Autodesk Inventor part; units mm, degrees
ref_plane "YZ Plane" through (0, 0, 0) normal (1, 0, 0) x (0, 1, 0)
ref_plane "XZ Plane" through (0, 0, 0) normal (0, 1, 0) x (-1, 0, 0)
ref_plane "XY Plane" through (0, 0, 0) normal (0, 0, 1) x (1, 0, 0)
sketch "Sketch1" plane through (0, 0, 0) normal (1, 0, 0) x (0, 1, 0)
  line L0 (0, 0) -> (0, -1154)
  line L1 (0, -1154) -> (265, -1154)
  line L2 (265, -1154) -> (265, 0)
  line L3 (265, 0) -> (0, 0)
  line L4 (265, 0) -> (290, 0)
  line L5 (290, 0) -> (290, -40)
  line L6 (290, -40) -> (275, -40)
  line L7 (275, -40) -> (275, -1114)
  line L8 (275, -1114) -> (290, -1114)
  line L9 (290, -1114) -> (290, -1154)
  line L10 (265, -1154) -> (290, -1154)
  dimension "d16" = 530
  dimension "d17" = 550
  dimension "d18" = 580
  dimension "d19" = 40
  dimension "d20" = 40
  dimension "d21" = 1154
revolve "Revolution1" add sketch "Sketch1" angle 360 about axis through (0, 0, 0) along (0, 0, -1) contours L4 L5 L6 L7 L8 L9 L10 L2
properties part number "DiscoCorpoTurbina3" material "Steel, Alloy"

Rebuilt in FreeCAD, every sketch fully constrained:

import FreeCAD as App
import Part
import Sketcher

V = App.Vector

doc = App.newDocument("Part")
body = doc.addObject("PartDesign::Body", "Body")

# Sketch on YZ plane
sketch1 = body.newObject("Sketcher::SketchObject", "Sketch")
sketch1.AttachmentSupport = (doc.getObject("YZ_Plane"), [""])
sketch1.MapMode = "FlatFace"
sketch1.addGeometry(Part.LineSegment(V(290, 0, 0), V(265, 0, 0)), False)
sketch1.addGeometry(Part.LineSegment(V(265, 0, 0), V(265, -1154, 0)), False)
sketch1.addGeometry(Part.LineSegment(V(265, -1154, 0), V(290, -1154, 0)), False)
sketch1.addGeometry(Part.LineSegment(V(290, -1154, 0), V(290, -1114, 0)), False)
sketch1.addGeometry(Part.LineSegment(V(290, -1114, 0), V(275, -1114, 0)), False)
sketch1.addGeometry(Part.LineSegment(V(275, -1114, 0), V(275, -40, 0)), False)
sketch1.addGeometry(Part.LineSegment(V(275, -40, 0), V(290, -40, 0)), False)
sketch1.addGeometry(Part.LineSegment(V(290, -40, 0), V(290, 0, 0)), False)
sketch1.addConstraint(Sketcher.Constraint("Coincident", 0, 2, 1, 1))
sketch1.addConstraint(Sketcher.Constraint("Coincident", 1, 2, 2, 1))
sketch1.addConstraint(Sketcher.Constraint("Coincident", 2, 2, 3, 1))
sketch1.addConstraint(Sketcher.Constraint("Coincident", 3, 2, 4, 1))
sketch1.addConstraint(Sketcher.Constraint("Coincident", 4, 2, 5, 1))
sketch1.addConstraint(Sketcher.Constraint("Coincident", 5, 2, 6, 1))
sketch1.addConstraint(Sketcher.Constraint("Coincident", 6, 2, 7, 1))
sketch1.addConstraint(Sketcher.Constraint("Coincident", 7, 2, 0, 1))
sketch1.addConstraint(Sketcher.Constraint("Horizontal", 0))
sketch1.addConstraint(Sketcher.Constraint("Vertical", 1))
sketch1.addConstraint(Sketcher.Constraint("Horizontal", 2))
sketch1.addConstraint(Sketcher.Constraint("Vertical", 3))
sketch1.addConstraint(Sketcher.Constraint("Horizontal", 4))
sketch1.addConstraint(Sketcher.Constraint("Vertical", 5))
sketch1.addConstraint(Sketcher.Constraint("Horizontal", 6))
sketch1.addConstraint(Sketcher.Constraint("Vertical", 7))
sketch1.addConstraint(Sketcher.Constraint("PointOnObject", 0, 2, -1))
sketch1.addConstraint(Sketcher.Constraint("Vertical", 3, 2, 6, 2))
sketch1.addConstraint(Sketcher.Constraint("Equal", 3, 7))
sketch1.addConstraint(Sketcher.Constraint("DistanceY", 1, 2, 1, 1, 1154.0))
sketch1.addConstraint(Sketcher.Constraint("DistanceY", 3, 1, 3, 2, 40.0))
sketch1.addConstraint(Sketcher.Constraint("DistanceX", 0, 2, 0, 1, 25.0))
sketch1.addConstraint(Sketcher.Constraint("DistanceX", 4, 2, 4, 1, 15.0))
sketch1.addConstraint(Sketcher.Constraint("DistanceX", -1, 1, 0, 2, 265.0))
revolution = body.newObject("PartDesign::Revolution", "Revolution")
revolution.Profile = sketch1
revolution.ReferenceAxis = (sketch1, ["V_Axis"])
revolution.Angle = 360

doc.recompute()
